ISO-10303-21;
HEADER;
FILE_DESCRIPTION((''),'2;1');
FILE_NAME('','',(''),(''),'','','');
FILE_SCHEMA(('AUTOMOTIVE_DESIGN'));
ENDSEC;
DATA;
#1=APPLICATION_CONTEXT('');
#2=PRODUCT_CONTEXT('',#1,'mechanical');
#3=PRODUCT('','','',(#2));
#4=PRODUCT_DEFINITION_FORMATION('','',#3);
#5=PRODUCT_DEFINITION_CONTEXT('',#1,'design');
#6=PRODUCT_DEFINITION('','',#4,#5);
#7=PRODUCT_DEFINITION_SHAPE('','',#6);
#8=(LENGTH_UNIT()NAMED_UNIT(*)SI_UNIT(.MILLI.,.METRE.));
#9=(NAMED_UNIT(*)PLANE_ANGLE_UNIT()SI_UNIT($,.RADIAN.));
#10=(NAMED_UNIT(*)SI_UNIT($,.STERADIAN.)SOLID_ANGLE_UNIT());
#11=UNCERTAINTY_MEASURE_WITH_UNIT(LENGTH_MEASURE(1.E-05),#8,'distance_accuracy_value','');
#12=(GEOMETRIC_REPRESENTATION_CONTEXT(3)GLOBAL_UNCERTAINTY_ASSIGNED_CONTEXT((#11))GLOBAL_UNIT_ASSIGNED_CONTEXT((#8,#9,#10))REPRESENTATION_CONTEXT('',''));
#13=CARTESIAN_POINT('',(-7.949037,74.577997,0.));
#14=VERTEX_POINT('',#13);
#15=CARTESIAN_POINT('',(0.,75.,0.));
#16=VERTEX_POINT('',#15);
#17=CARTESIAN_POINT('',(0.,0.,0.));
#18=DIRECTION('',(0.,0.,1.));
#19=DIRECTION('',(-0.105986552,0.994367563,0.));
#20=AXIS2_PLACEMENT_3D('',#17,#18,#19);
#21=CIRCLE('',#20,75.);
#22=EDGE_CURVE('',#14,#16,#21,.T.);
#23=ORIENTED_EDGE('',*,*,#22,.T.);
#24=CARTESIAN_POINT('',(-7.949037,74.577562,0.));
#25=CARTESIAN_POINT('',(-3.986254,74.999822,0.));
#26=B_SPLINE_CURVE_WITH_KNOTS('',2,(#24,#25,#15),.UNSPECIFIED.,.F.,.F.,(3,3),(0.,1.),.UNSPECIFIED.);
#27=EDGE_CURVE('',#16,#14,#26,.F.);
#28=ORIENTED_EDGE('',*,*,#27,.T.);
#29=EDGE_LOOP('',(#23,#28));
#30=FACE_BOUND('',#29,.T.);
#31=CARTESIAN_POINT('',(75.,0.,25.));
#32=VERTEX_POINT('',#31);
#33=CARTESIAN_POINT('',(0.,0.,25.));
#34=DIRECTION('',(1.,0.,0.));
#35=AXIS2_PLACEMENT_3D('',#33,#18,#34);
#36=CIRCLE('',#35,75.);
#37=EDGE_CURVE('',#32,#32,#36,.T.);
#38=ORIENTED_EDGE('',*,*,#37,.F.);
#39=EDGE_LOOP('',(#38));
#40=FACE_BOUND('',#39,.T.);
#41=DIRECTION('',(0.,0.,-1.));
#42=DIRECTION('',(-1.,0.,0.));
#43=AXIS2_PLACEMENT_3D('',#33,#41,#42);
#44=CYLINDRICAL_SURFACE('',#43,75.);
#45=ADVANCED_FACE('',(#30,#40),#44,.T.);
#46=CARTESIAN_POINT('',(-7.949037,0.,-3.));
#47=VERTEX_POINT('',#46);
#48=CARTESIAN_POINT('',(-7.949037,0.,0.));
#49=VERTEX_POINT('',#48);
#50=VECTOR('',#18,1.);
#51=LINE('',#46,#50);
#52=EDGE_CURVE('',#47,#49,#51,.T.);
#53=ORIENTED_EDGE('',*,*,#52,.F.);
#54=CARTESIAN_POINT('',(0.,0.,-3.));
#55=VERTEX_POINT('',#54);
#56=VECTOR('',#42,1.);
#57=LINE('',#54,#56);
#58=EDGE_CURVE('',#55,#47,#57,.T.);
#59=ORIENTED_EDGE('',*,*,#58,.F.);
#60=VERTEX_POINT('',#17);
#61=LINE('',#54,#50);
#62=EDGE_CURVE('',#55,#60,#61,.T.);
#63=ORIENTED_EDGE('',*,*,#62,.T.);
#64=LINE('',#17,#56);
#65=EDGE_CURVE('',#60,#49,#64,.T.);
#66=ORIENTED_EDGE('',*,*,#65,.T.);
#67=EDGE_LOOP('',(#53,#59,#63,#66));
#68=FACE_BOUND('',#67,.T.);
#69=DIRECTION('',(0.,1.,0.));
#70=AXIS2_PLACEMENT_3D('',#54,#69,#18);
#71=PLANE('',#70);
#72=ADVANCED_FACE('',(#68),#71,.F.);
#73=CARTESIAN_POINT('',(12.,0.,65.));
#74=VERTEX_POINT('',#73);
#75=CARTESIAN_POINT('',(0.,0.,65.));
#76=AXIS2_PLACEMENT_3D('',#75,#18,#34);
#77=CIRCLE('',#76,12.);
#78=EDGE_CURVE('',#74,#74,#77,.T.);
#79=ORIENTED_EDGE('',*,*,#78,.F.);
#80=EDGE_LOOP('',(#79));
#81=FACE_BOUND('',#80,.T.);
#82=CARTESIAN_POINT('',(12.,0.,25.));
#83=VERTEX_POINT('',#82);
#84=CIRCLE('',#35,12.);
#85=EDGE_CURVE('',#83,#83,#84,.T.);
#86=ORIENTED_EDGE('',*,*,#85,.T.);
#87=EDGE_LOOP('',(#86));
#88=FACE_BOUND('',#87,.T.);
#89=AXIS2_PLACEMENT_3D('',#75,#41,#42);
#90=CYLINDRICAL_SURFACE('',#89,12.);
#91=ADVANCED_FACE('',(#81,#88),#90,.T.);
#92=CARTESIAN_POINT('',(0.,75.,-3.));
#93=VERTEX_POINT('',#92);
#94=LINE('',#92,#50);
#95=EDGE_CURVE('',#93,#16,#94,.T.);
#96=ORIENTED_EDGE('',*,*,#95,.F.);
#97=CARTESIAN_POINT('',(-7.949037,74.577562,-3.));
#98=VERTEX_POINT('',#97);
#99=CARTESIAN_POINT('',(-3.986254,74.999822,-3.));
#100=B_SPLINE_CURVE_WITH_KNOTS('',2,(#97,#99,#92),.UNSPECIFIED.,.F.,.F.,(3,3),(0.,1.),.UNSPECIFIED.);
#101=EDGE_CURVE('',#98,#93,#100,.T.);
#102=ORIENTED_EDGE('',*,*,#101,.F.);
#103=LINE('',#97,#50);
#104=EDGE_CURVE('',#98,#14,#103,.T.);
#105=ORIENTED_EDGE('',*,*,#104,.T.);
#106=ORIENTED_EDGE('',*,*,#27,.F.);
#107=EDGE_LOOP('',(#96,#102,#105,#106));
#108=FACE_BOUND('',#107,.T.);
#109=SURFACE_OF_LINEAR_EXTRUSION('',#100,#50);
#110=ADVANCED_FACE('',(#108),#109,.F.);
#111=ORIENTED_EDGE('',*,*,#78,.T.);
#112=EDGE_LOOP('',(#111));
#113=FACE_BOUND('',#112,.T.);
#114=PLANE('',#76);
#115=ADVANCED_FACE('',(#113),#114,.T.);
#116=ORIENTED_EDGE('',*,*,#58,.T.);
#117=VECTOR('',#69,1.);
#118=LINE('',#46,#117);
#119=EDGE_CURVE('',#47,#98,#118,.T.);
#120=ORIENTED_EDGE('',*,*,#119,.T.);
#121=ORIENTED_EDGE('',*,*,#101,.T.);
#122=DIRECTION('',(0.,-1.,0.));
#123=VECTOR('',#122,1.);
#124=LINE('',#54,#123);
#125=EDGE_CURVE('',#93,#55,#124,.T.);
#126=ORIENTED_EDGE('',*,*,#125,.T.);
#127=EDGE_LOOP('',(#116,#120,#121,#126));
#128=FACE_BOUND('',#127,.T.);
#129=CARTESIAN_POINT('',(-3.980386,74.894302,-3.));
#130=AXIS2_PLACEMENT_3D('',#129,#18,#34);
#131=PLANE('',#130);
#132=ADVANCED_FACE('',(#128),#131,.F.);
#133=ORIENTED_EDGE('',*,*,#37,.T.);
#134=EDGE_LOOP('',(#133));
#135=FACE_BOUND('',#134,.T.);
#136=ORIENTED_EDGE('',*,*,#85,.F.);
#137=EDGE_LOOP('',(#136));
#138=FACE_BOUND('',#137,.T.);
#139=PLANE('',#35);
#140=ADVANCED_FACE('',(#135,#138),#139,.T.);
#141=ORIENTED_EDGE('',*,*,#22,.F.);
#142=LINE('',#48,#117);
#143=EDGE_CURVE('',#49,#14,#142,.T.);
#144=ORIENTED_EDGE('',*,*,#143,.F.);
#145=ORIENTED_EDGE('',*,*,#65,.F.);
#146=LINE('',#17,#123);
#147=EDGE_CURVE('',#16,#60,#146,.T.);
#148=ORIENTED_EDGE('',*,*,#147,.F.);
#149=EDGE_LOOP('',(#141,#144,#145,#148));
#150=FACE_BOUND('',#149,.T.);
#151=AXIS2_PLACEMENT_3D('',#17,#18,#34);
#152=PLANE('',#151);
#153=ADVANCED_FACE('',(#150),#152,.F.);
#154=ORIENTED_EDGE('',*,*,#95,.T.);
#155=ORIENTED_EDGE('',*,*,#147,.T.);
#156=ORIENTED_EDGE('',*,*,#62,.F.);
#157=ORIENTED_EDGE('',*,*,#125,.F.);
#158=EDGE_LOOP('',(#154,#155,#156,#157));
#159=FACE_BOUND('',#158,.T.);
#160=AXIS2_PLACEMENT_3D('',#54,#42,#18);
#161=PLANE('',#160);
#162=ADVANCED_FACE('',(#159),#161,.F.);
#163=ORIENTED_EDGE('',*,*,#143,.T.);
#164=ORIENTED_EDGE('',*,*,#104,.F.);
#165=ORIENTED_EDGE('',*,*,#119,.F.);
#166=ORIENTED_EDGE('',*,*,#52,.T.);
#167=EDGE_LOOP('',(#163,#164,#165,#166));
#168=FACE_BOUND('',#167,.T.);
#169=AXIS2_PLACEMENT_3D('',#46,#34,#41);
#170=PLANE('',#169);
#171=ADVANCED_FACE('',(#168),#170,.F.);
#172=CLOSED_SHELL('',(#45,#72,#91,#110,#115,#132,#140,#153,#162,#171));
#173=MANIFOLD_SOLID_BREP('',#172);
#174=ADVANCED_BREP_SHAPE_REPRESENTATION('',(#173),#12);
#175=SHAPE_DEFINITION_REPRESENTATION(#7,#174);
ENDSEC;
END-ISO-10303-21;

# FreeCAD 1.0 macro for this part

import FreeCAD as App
import Part
import Sketcher
Q = App.Units.Quantity

doc = App.newDocument("Part")
params = doc.addObject("Spreadsheet::Sheet", "Params")
for row, (alias, value) in enumerate([
    ("sketch1_diameter", "150 mm"),
    ("pad1_length", "25 mm"),
    ("sketch2_diameter", "24 mm"),
    ("pad2_length", "40 mm"),
    ("pad3_length", "3 mm"),
], start=1):
    params.set(f"A{row}", alias)
    params.set(f"B{row}", "=" + value)
    params.setAlias(f"B{row}", alias)

body = doc.addObject("PartDesign::Body", "Body")

# Sketch on XY plane
sketch1 = body.newObject("Sketcher::SketchObject", "Sketch")
sketch1.AttachmentSupport = (doc.getObject("XY_Plane"), [""])
sketch1.MapMode = "FlatFace"
sketch1.addGeometry(Part.Circle(App.Vector(0, 0, 0), App.Vector(0, 0, 1), 75), False)
sketch1.addConstraint([
    Sketcher.Constraint("Coincident", 0, 3, -1, 1),
    Sketcher.Constraint("Diameter", 0, Q("150 mm")),
])
sketch1.setExpression("Constraints[1]", "Params.sketch1_diameter")
pad1 = body.newObject("PartDesign::Pad", "Pad")
pad1.Profile = sketch1
pad1.setExpression("Length", "Params.pad1_length")

# Sketch on XY plane
sketch2 = body.newObject("Sketcher::SketchObject", "Sketch001")
sketch2.AttachmentSupport = (doc.getObject("XY_Plane"), [""])
sketch2.MapMode = "FlatFace"
sketch2.AttachmentOffset = App.Placement(App.Vector(0, 0, 25), App.Rotation())
sketch2.addGeometry(Part.Circle(App.Vector(0, 0, 0), App.Vector(0, 0, 1), 12), False)
sketch2.addConstraint([
    Sketcher.Constraint("Coincident", 0, 3, -1, 1),
    Sketcher.Constraint("Diameter", 0, Q("24 mm")),
])
sketch2.setExpression("Constraints[1]", "Params.sketch2_diameter")
pad2 = body.newObject("PartDesign::Pad", "Pad001")
pad2.Profile = sketch2
pad2.setExpression("Length", "Params.pad2_length")

# Sketch on XY plane
sketch3 = body.newObject("Sketcher::SketchObject", "Sketch002")
sketch3.AttachmentSupport = (doc.getObject("XY_Plane"), [""])
sketch3.MapMode = "FlatFace"
sketch3.addGeometry([
    Part.LineSegment(App.Vector(0, 75, 0), App.Vector(0, 0, 0)),
    Part.LineSegment(App.Vector(0, 0, 0), App.Vector(-7.949037, 0, 0)),
    Part.LineSegment(App.Vector(-7.949037, 0, 0), App.Vector(-7.949037, 74.577562, 0)),
    Part.BSplineCurve([App.Vector(-7.949037, 74.577562, 0), App.Vector(-3.986254, 74.999822, 0), App.Vector(0, 75, 0)], [3, 3], [0, 1], False, 2, [1, 1, 1], False),
], False)
sketch3.addConstraint([
    Sketcher.Constraint("Block", 3),
    Sketcher.Constraint("Coincident", 0, 2, 1, 1),
    Sketcher.Constraint("Coincident", 1, 2, 2, 1),
    Sketcher.Constraint("Coincident", 2, 2, 3, 1),
    Sketcher.Constraint("Coincident", 3, 2, 0, 1),
    Sketcher.Constraint("Vertical", 0),
    Sketcher.Constraint("Horizontal", 1),
    Sketcher.Constraint("Vertical", 2),
    Sketcher.Constraint("PointOnObject", 1, 2, -1),
])
pad3 = body.newObject("PartDesign::Pad", "Pad002")
pad3.Profile = sketch3
pad3.setExpression("Length", "Params.pad3_length")
pad3.Reversed = True

doc.recompute()
